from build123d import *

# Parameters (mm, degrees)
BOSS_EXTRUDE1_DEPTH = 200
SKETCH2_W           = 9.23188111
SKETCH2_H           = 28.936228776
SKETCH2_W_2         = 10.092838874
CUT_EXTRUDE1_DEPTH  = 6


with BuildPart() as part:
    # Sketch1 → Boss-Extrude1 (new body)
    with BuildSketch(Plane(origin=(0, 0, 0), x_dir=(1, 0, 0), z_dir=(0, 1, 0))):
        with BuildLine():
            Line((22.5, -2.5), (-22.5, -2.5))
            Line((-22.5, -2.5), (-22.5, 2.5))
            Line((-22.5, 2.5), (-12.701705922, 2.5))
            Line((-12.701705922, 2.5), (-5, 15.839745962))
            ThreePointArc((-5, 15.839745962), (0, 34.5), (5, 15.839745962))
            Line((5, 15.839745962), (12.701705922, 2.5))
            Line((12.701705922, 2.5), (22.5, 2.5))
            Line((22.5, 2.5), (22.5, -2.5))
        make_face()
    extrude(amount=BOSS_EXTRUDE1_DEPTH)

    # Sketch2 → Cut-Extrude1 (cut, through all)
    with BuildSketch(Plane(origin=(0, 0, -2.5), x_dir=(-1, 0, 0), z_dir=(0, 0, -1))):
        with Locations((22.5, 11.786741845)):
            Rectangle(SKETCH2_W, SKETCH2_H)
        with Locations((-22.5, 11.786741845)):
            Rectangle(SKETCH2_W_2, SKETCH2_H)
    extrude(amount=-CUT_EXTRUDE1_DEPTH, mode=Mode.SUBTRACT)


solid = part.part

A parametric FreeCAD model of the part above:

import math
import FreeCAD as App
import Part
import Sketcher
from FreeCAD import Vector
Q = App.Units.Quantity


def add_polygon(sketch, points):
    """Adds a closed chain of lines whose ends are joined by coincident constraints."""
    first, n = sketch.GeometryCount, len(points)
    for a, b in zip(points, points[1:] + points[:1]):
        sketch.addGeometry(Part.LineSegment(App.Vector(*a, 0), App.Vector(*b, 0)), False)
    for i in range(n):
        sketch.addConstraint(Sketcher.Constraint("Coincident", first + i, 2, first + (i + 1) % n, 1))

doc = App.newDocument("Part")
params = doc.addObject("Spreadsheet::Sheet", "Params")
for row, (alias, value) in enumerate([
    ("sketch1_radius", "10 mm"),
    ("sketch1_width", "45 mm"),
    ("sketch1_height", "5 mm"),
    ("pad1_length", "200 mm"),
], start=1):
    params.set(f"A{row}", alias)
    params.set(f"B{row}", "=" + value)
    params.setAlias(f"B{row}", alias)

body = doc.addObject("PartDesign::Body", "Body")

sketch1 = doc.addObject("Sketcher::SketchObject", "Sketch")
body.addObject(sketch1)
sketch1.AttachmentSupport = (doc.XZ_Plane, [""])
sketch1.MapMode = "FlatFace"
sketch1.addGeometry(Part.LineSegment(Vector(-22.5, 2.5, 0), Vector(22.5, 2.5, 0)), False)
sketch1.addGeometry(Part.LineSegment(Vector(22.5, 2.5, 0), Vector(22.5, -2.5, 0)), False)
sketch1.addGeometry(Part.LineSegment(Vector(22.5, -2.5, 0), Vector(12.701706, -2.5, 0)), False)
sketch1.addGeometry(Part.LineSegment(Vector(12.701706, -2.5, 0), Vector(5, -15.839746, 0)), False)
sketch1.addGeometry(Part.ArcOfCircle(Part.Circle(Vector(0, -24.5, 0), Vector(0, 0, 1), 10), math.radians(120), math.radians(420)), False)
sketch1.addGeometry(Part.LineSegment(Vector(-5, -15.839746, 0), Vector(-12.701706, -2.5, 0)), False)
sketch1.addGeometry(Part.LineSegment(Vector(-12.701706, -2.5, 0), Vector(-22.5, -2.5, 0)), False)
sketch1.addGeometry(Part.LineSegment(Vector(-22.5, -2.5, 0), Vector(-22.5, 2.5, 0)), False)
sketch1.addConstraint(Sketcher.Constraint("Coincident", 0, 2, 1, 1))
sketch1.addConstraint(Sketcher.Constraint("Coincident", 1, 2, 2, 1))
sketch1.addConstraint(Sketcher.Constraint("Coincident", 2, 2, 3, 1))
sketch1.addConstraint(Sketcher.Constraint("Coincident", 3, 2, 4, 2))
sketch1.addConstraint(Sketcher.Constraint("Coincident", 4, 1, 5, 1))
sketch1.addConstraint(Sketcher.Constraint("Coincident", 5, 2, 6, 1))
sketch1.addConstraint(Sketcher.Constraint("Coincident", 6, 2, 7, 1))
sketch1.addConstraint(Sketcher.Constraint("Coincident", 7, 2, 0, 1))
sketch1.addConstraint(Sketcher.Constraint("Horizontal", 0))
sketch1.addConstraint(Sketcher.Constraint("Vertical", 1))
sketch1.addConstraint(Sketcher.Constraint("Horizontal", 2))
sketch1.addConstraint(Sketcher.Constraint("Horizontal", 6))
sketch1.addConstraint(Sketcher.Constraint("Vertical", 7))
sketch1.addConstraint(Sketcher.Constraint("Symmetric", 0, 2, 6, 2, -1, 1))
sketch1.addConstraint(Sketcher.Constraint("Symmetric", 3, 2, 4, 1, -2))
sketch1.addConstraint(Sketcher.Constraint("Symmetric", 2, 2, 5, 2, -2))
sketch1.addConstraint(Sketcher.Constraint("Radius", 4, Q("10 mm")))
sketch1.addConstraint(Sketcher.Constraint("DistanceX", 0, 1, 0, 2, Q("45 mm")))
sketch1.addConstraint(Sketcher.Constraint("DistanceY", 1, 2, 1, 1, Q("5 mm")))
sketch1.addConstraint(Sketcher.Constraint("Angle", 3, Q("-120 deg")))
sketch1.addConstraint(Sketcher.Constraint("DistanceX", -1, 1, 3, 2, Q("5 mm")))
sketch1.addConstraint(Sketcher.Constraint("DistanceY", 4, 3, 0, 2, Q("27 mm")))
sketch1.setExpression("Constraints[16]", "Params.sketch1_radius")
sketch1.setExpression("Constraints[17]", "Params.sketch1_width")
sketch1.setExpression("Constraints[18]", "Params.sketch1_height")
pad1 = doc.addObject("PartDesign::Pad", "Pad")
body.addObject(pad1)
pad1.Profile = sketch1
pad1.setExpression("Length", "Params.pad1_length")
pad1.Reversed = True

sketch2 = doc.addObject("Sketcher::SketchObject", "Sketch001")
body.addObject(sketch2)
sketch2.AttachmentSupport = (doc.XY_Plane, [""])
sketch2.MapMode = "FlatFace"
sketch2.AttachmentOffset = App.Placement(Vector(0, 0, -2.5), App.Rotation())
add_polygon(sketch2, [(-17.884059, 26.254856), (-17.884059, -2.681373), (-27.115941, -2.681373), (-27.115941, 26.254856)])
add_polygon(sketch2, [(27.546419, 26.254856), (27.546419, -2.681373), (17.453581, -2.681373), (17.453581, 26.254856)])
sketch2.addConstraint(Sketcher.Constraint("Vertical", 0))
sketch2.addConstraint(Sketcher.Constraint("Horizontal", 1))
sketch2.addConstraint(Sketcher.Constraint("Vertical", 2))
sketch2.addConstraint(Sketcher.Constraint("Horizontal", 3))
sketch2.addConstraint(Sketcher.Constraint("Vertical", 4))
sketch2.addConstraint(Sketcher.Constraint("Horizontal", 5))
sketch2.addConstraint(Sketcher.Constraint("Vertical", 6))
sketch2.addConstraint(Sketcher.Constraint("Horizontal", 7))
sketch2.addConstraint(Sketcher.Constraint("Horizontal", 1, 2, 4, 2))
sketch2.addConstraint(Sketcher.Constraint("Horizontal", 3, 2, 6, 2))
sketch2.addConstraint(Sketcher.Constraint("DistanceX", 1, 2, 1, 1, Q("9.231881 mm")))
sketch2.addConstraint(Sketcher.Constraint("DistanceX", 5, 2, 5, 1, Q("10.092839 mm")))
sketch2.addConstraint(Sketcher.Constraint("DistanceY", 0, 2, 0, 1, Q("28.936229 mm")))
sketch2.addConstraint(Sketcher.Constraint("DistanceX", 0, 2, -1, 1, Q("17.884059 mm")))
sketch2.addConstraint(Sketcher.Constraint("DistanceX", -1, 1, 4, 2, Q("27.546419 mm")))
sketch2.addConstraint(Sketcher.Constraint("DistanceY", 0, 2, -1, 1, Q("2.681373 mm")))
pocket1 = doc.addObject("PartDesign::Pocket", "Pocket")
body.addObject(pocket1)
pocket1.Profile = sketch2
pocket1.Type = "ThroughAll"
pocket1.Reversed = True

doc.recompute()
